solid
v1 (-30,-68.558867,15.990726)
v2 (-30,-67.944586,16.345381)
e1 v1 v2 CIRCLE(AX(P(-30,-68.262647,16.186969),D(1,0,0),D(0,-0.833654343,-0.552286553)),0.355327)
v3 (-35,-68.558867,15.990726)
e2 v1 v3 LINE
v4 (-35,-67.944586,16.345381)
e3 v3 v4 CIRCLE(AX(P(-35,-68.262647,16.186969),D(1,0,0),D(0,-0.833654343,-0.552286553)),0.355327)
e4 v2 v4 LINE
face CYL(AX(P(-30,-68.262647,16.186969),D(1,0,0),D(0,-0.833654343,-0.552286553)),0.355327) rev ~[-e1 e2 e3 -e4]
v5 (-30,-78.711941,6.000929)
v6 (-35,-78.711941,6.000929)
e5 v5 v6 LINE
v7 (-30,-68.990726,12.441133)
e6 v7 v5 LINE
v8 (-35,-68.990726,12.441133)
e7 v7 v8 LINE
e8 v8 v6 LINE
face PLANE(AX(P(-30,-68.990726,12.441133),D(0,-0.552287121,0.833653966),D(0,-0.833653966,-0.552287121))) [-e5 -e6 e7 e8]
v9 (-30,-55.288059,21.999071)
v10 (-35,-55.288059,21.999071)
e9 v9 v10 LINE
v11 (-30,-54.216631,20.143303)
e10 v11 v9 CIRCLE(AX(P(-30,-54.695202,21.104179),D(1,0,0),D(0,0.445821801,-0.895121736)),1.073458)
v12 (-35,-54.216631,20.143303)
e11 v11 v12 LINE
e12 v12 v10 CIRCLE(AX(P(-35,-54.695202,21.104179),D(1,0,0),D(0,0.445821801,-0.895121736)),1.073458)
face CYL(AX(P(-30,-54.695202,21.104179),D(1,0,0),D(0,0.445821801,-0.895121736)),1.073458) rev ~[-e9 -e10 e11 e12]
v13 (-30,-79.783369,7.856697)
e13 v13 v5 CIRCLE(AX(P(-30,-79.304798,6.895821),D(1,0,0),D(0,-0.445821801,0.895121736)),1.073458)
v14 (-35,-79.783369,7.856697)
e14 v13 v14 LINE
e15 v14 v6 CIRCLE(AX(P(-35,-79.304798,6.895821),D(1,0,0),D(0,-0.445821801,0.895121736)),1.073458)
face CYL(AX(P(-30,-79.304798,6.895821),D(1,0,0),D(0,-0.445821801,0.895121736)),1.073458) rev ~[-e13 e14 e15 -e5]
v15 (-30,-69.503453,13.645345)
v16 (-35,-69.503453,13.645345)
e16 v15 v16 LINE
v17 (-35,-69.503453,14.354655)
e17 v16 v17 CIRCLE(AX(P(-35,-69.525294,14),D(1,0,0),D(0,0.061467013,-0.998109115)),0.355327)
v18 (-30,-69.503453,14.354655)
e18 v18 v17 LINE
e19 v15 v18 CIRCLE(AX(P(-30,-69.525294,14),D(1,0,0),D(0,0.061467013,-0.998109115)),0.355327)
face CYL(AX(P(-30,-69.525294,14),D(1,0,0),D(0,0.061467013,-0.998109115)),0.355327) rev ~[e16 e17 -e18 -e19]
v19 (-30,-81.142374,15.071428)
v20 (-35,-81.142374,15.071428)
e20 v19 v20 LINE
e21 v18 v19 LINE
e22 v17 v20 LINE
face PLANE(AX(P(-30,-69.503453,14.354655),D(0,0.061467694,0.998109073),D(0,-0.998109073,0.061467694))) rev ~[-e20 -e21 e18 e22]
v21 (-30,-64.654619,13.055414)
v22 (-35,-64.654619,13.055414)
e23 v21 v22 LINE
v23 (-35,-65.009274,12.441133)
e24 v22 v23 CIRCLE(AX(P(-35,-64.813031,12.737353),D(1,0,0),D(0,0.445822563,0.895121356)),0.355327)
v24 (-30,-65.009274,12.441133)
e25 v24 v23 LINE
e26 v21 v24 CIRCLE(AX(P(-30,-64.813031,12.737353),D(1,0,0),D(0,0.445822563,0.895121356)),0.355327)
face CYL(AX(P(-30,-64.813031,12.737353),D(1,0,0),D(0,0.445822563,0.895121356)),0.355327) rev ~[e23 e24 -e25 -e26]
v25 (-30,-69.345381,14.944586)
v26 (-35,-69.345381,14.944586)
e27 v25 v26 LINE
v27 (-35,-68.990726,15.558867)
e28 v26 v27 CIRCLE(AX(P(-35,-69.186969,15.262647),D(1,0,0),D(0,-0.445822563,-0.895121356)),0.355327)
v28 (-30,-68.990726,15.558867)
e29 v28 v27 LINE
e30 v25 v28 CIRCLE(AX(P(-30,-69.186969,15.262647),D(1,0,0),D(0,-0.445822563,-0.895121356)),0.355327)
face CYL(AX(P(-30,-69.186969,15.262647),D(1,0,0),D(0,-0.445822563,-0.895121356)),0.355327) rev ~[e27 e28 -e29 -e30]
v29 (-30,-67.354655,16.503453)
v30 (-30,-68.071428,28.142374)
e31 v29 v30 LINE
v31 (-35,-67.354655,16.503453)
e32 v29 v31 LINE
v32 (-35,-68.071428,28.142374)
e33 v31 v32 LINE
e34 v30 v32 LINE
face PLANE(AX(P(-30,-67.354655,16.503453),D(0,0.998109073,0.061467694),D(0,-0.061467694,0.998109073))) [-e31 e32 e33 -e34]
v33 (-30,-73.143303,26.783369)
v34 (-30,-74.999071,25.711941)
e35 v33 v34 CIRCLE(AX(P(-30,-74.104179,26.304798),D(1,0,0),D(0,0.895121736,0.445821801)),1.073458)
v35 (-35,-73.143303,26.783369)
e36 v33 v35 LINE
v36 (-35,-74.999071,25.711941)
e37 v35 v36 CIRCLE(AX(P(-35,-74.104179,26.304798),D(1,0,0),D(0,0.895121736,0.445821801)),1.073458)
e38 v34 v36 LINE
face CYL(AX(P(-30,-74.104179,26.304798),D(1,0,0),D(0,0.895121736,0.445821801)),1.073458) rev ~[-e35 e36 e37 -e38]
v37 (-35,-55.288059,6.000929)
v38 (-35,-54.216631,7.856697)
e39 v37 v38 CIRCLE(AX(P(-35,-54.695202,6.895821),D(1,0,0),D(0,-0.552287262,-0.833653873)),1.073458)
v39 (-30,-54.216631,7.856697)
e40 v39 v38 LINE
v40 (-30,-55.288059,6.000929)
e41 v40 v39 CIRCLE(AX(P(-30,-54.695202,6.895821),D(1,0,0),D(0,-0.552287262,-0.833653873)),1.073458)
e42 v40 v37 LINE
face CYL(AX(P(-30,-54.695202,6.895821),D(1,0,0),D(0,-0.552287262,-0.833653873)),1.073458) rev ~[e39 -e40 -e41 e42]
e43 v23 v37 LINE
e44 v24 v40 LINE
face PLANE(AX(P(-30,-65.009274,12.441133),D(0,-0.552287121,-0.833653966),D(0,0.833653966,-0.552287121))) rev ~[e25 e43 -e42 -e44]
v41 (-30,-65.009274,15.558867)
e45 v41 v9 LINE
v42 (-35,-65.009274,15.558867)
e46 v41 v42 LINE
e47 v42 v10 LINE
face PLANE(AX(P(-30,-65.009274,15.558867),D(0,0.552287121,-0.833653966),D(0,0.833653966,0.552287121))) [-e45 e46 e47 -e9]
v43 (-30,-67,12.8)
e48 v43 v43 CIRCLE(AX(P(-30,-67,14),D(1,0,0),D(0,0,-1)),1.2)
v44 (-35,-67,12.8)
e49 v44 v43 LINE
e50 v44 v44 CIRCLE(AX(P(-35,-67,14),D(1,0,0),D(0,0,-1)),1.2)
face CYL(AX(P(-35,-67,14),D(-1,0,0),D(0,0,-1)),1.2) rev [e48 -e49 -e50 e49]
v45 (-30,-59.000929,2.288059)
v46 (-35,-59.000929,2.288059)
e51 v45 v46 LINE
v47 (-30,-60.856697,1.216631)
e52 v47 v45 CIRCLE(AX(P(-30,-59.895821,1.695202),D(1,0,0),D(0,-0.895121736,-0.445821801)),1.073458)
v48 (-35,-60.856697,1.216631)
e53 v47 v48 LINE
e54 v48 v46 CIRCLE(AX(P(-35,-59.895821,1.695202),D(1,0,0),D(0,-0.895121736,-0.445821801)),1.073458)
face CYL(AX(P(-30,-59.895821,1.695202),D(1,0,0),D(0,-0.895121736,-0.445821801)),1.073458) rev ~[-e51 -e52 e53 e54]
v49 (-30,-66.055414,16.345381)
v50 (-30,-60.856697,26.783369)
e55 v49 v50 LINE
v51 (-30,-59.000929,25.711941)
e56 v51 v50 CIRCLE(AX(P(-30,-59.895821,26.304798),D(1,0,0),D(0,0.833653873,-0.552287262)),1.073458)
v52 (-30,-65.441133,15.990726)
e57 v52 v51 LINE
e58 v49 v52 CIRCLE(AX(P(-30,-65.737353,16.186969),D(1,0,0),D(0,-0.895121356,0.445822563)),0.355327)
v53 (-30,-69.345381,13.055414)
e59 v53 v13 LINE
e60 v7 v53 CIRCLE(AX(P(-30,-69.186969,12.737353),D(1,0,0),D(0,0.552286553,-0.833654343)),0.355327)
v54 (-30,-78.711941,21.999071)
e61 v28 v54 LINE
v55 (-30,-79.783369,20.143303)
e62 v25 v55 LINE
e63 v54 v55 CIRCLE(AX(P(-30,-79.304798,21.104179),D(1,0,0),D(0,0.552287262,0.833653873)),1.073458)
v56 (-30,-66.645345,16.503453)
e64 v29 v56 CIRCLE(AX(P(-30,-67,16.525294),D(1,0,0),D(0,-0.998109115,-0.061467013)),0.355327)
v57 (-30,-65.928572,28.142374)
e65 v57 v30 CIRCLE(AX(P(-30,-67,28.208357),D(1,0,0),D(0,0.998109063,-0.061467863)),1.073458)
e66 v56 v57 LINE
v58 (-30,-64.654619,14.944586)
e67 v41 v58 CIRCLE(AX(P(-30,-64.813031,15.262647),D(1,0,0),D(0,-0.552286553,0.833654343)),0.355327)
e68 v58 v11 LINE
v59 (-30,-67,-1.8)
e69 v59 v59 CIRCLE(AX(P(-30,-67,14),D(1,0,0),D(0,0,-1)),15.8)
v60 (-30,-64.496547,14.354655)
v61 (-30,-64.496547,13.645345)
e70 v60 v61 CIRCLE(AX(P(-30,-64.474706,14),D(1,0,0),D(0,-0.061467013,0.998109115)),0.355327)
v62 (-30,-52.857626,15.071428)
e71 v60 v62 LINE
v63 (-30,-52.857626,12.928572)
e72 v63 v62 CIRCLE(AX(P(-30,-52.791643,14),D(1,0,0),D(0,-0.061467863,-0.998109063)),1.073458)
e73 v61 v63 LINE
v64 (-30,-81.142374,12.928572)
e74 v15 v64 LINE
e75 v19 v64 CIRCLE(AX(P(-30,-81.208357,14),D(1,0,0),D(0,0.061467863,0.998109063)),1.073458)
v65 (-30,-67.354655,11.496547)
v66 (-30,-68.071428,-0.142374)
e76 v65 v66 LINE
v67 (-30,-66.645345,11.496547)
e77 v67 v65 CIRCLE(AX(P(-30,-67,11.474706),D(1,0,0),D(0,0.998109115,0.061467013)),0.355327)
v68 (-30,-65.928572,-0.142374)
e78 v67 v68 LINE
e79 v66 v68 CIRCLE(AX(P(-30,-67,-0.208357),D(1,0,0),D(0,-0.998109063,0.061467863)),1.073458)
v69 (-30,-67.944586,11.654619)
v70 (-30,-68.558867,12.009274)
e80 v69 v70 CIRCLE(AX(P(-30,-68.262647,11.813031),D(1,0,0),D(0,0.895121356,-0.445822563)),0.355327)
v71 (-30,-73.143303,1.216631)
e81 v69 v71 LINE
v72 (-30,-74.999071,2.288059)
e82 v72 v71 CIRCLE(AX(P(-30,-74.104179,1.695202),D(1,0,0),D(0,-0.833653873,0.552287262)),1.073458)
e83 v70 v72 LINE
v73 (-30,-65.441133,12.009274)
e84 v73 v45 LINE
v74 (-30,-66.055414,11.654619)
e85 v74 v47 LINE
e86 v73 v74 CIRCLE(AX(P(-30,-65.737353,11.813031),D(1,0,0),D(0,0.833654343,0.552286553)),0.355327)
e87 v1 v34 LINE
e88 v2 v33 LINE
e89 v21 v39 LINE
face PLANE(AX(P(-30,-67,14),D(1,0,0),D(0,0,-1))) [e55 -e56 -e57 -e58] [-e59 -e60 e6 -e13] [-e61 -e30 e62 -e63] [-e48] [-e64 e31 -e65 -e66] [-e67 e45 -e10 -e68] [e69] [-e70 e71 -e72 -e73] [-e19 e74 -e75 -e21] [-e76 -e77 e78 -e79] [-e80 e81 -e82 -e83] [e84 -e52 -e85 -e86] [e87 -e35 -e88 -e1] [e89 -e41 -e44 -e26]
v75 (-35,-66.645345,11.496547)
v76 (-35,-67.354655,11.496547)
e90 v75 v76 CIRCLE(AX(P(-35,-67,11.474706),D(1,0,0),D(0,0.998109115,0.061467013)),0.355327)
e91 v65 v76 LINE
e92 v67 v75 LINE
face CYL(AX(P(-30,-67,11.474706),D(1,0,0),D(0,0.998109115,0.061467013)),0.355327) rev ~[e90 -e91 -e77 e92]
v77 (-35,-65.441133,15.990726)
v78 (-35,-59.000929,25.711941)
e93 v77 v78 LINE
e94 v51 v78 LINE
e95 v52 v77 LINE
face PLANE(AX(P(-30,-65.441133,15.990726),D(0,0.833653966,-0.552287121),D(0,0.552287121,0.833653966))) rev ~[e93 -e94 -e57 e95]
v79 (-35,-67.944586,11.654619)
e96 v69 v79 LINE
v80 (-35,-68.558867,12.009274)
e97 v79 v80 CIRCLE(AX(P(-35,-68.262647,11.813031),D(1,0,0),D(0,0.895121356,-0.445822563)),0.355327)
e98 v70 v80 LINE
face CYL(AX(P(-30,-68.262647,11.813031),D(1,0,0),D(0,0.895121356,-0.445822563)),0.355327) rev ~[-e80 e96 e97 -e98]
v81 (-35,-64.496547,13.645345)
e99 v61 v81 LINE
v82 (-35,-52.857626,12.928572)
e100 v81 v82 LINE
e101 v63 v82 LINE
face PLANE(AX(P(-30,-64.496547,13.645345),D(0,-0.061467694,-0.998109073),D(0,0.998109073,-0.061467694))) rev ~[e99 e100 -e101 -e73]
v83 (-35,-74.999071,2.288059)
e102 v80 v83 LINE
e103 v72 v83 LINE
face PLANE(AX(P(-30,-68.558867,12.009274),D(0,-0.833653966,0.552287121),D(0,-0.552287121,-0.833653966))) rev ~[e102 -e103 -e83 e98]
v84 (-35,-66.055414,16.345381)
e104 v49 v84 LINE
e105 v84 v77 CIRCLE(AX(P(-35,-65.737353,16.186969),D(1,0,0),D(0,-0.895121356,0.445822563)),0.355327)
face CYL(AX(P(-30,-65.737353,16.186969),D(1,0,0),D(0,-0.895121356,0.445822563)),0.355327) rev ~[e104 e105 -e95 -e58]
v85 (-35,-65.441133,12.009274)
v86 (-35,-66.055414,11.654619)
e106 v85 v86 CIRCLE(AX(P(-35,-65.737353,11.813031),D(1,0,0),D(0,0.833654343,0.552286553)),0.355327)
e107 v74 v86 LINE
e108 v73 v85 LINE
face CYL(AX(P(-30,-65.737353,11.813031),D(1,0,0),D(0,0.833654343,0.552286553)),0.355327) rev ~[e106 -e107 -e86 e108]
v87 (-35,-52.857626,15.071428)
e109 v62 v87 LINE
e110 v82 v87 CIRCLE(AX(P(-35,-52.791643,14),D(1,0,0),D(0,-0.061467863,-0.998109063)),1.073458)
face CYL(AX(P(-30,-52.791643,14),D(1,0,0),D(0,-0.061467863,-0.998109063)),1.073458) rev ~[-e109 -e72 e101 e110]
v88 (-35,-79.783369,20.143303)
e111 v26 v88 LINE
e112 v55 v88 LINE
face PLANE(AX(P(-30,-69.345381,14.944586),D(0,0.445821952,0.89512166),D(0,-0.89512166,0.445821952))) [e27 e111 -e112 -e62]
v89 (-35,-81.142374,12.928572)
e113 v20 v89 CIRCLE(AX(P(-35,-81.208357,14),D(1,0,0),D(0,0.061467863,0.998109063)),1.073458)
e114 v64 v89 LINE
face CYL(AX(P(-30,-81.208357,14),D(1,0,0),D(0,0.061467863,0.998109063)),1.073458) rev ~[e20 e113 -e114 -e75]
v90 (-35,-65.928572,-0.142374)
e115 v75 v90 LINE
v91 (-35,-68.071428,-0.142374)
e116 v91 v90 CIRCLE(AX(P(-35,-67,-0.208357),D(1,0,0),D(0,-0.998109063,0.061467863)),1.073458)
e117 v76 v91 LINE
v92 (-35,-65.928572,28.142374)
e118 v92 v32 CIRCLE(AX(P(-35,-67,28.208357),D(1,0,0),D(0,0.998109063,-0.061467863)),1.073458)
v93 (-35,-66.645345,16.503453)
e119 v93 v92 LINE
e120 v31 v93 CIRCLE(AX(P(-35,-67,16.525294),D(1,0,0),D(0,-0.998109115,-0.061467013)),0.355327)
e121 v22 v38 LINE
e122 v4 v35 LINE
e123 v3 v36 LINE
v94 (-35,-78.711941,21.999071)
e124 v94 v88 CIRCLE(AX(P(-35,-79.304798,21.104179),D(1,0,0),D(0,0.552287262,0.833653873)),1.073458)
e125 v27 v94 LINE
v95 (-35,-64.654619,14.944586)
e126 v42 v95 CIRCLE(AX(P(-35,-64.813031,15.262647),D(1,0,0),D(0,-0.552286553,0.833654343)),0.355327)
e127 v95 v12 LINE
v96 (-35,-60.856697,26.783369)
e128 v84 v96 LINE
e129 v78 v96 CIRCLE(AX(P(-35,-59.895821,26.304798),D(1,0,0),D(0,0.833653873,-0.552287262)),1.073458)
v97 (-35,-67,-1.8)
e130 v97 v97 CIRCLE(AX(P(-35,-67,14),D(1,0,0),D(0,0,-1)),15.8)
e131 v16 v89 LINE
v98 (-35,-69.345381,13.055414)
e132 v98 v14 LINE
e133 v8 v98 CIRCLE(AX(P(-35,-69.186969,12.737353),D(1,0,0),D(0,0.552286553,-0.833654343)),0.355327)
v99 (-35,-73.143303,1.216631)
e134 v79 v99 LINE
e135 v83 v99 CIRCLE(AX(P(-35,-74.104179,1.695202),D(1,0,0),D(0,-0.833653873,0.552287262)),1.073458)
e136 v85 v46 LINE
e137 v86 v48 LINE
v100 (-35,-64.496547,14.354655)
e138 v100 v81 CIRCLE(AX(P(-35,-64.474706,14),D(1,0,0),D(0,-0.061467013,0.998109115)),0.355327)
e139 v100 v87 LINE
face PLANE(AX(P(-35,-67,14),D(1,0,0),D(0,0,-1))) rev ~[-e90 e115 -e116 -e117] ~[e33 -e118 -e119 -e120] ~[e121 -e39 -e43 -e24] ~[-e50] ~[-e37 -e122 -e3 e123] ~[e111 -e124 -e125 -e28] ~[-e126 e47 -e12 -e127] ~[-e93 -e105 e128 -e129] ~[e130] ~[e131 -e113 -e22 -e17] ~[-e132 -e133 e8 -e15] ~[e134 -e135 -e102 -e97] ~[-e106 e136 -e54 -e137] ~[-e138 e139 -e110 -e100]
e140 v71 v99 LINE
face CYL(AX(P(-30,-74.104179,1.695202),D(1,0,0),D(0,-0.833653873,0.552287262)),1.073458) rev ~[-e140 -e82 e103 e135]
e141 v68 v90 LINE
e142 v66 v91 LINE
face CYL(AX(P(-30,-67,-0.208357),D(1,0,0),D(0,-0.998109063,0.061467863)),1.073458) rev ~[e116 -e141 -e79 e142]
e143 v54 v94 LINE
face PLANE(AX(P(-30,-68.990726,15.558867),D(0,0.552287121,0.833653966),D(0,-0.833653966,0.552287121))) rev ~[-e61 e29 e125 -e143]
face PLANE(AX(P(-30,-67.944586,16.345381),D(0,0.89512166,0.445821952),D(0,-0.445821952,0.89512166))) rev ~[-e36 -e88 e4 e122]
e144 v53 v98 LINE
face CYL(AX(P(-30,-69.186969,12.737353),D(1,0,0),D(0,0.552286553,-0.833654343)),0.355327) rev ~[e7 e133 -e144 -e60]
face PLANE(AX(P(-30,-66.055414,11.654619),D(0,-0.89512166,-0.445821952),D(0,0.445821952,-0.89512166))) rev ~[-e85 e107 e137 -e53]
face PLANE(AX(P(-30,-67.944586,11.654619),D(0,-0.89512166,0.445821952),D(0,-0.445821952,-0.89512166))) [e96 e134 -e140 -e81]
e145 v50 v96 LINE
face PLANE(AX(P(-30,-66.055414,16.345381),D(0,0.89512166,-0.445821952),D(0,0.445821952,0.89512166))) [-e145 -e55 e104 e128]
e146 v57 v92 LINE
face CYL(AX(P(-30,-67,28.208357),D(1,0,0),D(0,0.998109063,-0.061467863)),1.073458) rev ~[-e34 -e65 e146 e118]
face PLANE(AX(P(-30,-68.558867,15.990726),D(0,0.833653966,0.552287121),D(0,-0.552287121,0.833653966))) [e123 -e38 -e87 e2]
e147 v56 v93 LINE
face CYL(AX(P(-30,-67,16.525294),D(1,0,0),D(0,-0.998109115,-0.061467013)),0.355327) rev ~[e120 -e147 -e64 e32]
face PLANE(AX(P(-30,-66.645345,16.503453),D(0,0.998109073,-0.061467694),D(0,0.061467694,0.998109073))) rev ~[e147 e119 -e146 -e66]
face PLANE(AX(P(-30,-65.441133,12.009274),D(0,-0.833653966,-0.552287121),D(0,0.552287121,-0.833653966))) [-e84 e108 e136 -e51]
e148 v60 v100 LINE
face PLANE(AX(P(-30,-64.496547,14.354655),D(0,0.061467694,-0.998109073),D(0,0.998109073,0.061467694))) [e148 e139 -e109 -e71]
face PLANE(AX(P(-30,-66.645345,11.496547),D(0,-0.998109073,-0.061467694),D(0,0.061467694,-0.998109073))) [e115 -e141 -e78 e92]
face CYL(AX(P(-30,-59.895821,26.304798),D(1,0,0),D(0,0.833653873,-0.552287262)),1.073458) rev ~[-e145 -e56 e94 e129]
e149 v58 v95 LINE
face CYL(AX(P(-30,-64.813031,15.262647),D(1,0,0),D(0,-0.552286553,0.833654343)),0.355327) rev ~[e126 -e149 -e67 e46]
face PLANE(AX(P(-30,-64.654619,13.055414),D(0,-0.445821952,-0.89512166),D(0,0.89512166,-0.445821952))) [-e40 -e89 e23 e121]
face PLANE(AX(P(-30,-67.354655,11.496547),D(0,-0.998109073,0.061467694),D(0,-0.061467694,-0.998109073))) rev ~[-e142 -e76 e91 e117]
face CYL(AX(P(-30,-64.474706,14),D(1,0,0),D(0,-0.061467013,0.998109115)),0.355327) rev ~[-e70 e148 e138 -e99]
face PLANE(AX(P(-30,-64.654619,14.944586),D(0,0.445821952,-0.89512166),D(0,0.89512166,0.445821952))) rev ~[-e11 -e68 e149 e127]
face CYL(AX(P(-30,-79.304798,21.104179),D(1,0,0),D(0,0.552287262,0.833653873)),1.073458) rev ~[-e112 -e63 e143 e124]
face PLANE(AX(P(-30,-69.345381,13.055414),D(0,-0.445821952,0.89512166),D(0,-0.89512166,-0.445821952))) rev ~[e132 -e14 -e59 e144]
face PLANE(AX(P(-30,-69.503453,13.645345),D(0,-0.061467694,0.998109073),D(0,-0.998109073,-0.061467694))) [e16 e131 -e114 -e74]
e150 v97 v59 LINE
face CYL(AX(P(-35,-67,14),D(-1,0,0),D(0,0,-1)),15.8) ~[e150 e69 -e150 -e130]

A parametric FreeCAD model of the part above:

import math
import FreeCAD as App
import Part
import Sketcher

doc = App.newDocument("Part")
body = doc.addObject("PartDesign::Body", "Body")

sketch1 = body.newObject("Sketcher::SketchObject", "Sketch")
sketch1.AttachmentSupport = (doc.getObject("XY_Plane"), [""])
sketch1.MapMode = "FlatFace"
sketch1.addGeometry([
    Part.Circle(App.Vector(0, 0, 0), App.Vector(0, 0, 1), 15.8),
    Part.Circle(App.Vector(0, 0, 0), App.Vector(0, 0, 1), 1.2),
], False)
sketch1.addConstraint([
    Sketcher.Constraint("Coincident", 0, 3, -1, 1),
    Sketcher.Constraint("Coincident", 1, 3, -1, 1),
    Sketcher.Constraint("Diameter", 0, 31.6),
    Sketcher.Constraint("Diameter", 1, 2.4),
])
pad1 = body.newObject("PartDesign::Pad", "Pad")
pad1.Profile = sketch1
pad1.Length = 5

sketch2 = body.newObject("Sketcher::SketchObject", "Sketch001")
sketch2.AttachmentSupport = (doc.getObject("XY_Plane"), [""])
sketch2.MapMode = "FlatFace"
sketch2.AttachmentOffset = App.Placement(App.Vector(0, 0, 5), App.Rotation())
sketch2.addGeometry([
    Part.ArcOfCircle(Part.Circle(App.Vector(0, 2.525294, 0), App.Vector(0, 0, 1), 0.355327), math.radians(-176.475978), math.radians(-3.524022)),
    Part.LineSegment(App.Vector(0.354655, 2.503453, 0), App.Vector(1.071428, 14.142374, 0)),
    Part.ArcOfCircle(Part.Circle(App.Vector(0, 14.208357, 0), App.Vector(0, 0, 1), 1.073458), math.radians(-3.524071), math.radians(183.524071)),
    Part.LineSegment(App.Vector(-1.071428, 14.142374, 0), App.Vector(-0.354655, 2.503453, 0)),
], False)
sketch2.addConstraint([
    Sketcher.Constraint("Tangent", 0, 2, 1, 1),
    Sketcher.Constraint("Tangent", 1, 2, 2, 1),
    Sketcher.Constraint("Tangent", 2, 2, 3, 1),
    Sketcher.Constraint("Tangent", 3, 2, 0, 1),
    Sketcher.Constraint("Symmetric", 1, 2, 2, 2, -2),
    Sketcher.Constraint("Radius", 0, 0.355327),
    Sketcher.Constraint("Radius", 2, 1.073458),
    Sketcher.Constraint("Distance", 1, 11.660971),
    Sketcher.Constraint("DistanceY", -1, 1, 0, 3, 2.525294),
])
pocket1 = body.newObject("PartDesign::Pocket", "Pocket")
pocket1.Profile = sketch2
pocket1.Length = 5
doc.recompute()

polarpattern = body.newObject("PartDesign::PolarPattern", "PolarPattern")
polarpattern.Originals = [pocket1]
polarpattern.Axis = (doc.getObject("Z_Axis"), [""])
polarpattern.Angle = 360
polarpattern.Occurrences = 12
body.Tip = polarpattern
body2 = doc.addObject("PartDesign::Body", "Body001")
doc.recompute()

body.Placement = App.Placement(App.Vector(-35, -67, 14), App.Rotation(App.Vector(0, 1, 0), 90))
boolean = body2.newObject("PartDesign::Boolean", "Boolean")
boolean.Type = "Fuse"
boolean.addObjects([body])

doc.recompute()
